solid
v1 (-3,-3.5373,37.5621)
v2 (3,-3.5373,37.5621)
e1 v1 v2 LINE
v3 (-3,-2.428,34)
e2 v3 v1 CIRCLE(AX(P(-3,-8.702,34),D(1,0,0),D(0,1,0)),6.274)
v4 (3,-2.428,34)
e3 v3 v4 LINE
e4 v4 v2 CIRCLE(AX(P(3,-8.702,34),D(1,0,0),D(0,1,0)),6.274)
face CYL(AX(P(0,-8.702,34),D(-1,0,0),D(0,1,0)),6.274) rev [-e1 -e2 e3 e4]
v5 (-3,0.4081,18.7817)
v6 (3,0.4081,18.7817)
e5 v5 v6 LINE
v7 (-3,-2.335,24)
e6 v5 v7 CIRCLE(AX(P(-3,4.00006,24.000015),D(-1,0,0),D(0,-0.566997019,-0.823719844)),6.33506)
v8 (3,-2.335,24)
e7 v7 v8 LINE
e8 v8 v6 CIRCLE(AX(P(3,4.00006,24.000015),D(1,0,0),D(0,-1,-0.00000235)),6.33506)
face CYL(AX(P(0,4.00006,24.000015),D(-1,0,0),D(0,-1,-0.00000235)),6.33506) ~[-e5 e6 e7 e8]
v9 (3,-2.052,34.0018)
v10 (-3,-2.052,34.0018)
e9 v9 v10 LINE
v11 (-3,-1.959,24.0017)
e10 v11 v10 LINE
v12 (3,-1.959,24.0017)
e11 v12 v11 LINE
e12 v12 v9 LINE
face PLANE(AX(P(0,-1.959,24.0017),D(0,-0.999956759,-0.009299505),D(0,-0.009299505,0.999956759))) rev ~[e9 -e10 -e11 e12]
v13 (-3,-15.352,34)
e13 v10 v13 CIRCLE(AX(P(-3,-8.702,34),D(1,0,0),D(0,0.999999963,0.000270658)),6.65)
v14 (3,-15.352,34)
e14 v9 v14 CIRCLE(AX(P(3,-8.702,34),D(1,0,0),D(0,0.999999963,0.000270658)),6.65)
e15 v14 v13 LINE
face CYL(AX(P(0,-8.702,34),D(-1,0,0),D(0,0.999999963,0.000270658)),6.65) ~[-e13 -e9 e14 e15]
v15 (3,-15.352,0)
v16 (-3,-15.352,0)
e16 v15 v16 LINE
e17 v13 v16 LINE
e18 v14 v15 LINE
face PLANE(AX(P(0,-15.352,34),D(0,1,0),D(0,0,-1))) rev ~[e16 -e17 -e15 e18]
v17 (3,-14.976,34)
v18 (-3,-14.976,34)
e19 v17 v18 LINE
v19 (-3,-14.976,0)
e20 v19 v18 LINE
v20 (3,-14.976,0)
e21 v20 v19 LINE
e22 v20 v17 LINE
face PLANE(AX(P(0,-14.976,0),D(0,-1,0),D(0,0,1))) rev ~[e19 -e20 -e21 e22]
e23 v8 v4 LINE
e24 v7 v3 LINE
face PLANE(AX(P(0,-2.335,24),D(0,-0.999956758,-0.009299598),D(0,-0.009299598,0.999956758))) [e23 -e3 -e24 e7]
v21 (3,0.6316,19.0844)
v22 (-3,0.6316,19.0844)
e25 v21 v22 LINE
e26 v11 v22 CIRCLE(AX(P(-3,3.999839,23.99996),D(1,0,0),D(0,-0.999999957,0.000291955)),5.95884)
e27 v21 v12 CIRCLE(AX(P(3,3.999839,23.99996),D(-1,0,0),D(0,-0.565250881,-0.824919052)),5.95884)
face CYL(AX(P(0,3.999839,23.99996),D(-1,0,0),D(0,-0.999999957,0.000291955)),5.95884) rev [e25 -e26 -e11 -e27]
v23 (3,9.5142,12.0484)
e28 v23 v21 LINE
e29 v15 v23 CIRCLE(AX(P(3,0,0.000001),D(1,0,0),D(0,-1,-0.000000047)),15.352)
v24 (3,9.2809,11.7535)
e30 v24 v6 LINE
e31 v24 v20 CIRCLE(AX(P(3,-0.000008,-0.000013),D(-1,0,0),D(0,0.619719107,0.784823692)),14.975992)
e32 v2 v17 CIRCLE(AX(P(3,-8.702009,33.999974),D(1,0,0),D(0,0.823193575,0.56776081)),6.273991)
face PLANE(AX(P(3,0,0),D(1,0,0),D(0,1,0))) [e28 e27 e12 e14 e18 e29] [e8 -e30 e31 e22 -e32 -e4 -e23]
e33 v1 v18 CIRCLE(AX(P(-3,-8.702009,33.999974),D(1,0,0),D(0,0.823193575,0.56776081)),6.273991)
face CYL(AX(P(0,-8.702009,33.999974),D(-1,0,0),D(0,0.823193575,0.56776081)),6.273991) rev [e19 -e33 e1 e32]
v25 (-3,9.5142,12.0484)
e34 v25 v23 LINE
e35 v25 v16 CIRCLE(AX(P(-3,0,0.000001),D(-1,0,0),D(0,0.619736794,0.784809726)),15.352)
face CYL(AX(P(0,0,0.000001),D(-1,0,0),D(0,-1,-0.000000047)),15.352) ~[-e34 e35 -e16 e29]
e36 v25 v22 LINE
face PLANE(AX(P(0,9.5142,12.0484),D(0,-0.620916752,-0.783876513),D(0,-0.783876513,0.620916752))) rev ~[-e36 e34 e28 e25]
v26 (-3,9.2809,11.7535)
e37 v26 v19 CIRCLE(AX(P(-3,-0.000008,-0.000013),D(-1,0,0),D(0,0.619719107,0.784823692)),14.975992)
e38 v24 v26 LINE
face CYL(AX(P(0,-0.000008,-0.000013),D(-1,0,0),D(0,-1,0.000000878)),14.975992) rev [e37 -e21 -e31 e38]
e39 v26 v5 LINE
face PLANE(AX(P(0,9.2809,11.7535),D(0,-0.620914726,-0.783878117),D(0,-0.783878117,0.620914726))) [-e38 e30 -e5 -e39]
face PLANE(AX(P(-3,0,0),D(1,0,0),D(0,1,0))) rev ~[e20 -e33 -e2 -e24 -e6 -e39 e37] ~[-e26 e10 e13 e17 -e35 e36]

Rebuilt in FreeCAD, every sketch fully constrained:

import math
import FreeCAD as App
import Part
import Sketcher

V = App.Vector

doc = App.newDocument("Part")
body = doc.addObject("PartDesign::Body", "Body")

sketch1 = doc.addObject("Sketcher::SketchObject", "Sketch")
body.addObject(sketch1)
sketch1.AttachmentSupport = (doc.YZ_Plane, [""])
sketch1.MapMode = "FlatFace"
sketch1.addGeometry([
    Part.ArcOfCircle(Part.Circle(V(0, 0, 0), V(0, 0, 1), 15.352), math.radians(180), math.radians(411.703084)),
    Part.LineSegment(V(9.5142, 12.0484, 0), V(0.6316, 19.0844, 0)),
    Part.ArcOfCircle(Part.Circle(V(4, 24, 0), V(0, 0, 1), 5.959), math.radians(179.983655), math.radians(235.579227)),
    Part.LineSegment(V(-1.959, 24.0017, 0), V(-2.052, 34.0018, 0)),
    Part.ArcOfCircle(Part.Circle(V(-8.702, 34, 0), V(0, 0, 1), 6.65), math.radians(0.015509), math.radians(180)),
    Part.LineSegment(V(-15.352, 34, 0), V(-15.352, 0, 0)),
    Part.ArcOfCircle(Part.Circle(V(-8.702, 34, 0), V(0, 0, 1), 6.274), math.radians(34.594077), math.radians(180)),
    Part.ArcOfCircle(Part.Circle(V(-8.702, 34, 0), V(0, 0, 1), 6.274), math.radians(0), math.radians(34.594077)),
    Part.LineSegment(V(-2.428, 34, 0), V(-2.335, 24, 0)),
    Part.ArcOfCircle(Part.Circle(V(4, 24, 0), V(0, 0, 1), 6.335), math.radians(180), math.radians(235.45929)),
    Part.LineSegment(V(0.4081, 18.7817, 0), V(9.2809, 11.7535, 0)),
    Part.ArcOfCircle(Part.Circle(V(0, 0, 0), V(0, 0, 1), 14.976), math.radians(180), math.radians(411.704368)),
    Part.LineSegment(V(-14.976, 0, 0), V(-14.976, 34, 0)),
], False)
sketch1.addConstraint([
    Sketcher.Constraint("Coincident", 0, 2, 1, 1),
    Sketcher.Constraint("Coincident", 1, 2, 2, 2),
    Sketcher.Constraint("Coincident", 2, 1, 3, 1),
    Sketcher.Constraint("Coincident", 3, 2, 4, 1),
    Sketcher.Constraint("Tangent", 4, 2, 5, 1),
    Sketcher.Constraint("Tangent", 5, 2, 0, 1),
    Sketcher.Constraint("Tangent", 6, 1, 7, 2),
    Sketcher.Constraint("Coincident", 7, 1, 8, 1),
    Sketcher.Constraint("Coincident", 8, 2, 9, 1),
    Sketcher.Constraint("Coincident", 9, 2, 10, 1),
    Sketcher.Constraint("Coincident", 10, 2, 11, 2),
    Sketcher.Constraint("Tangent", 11, 1, 12, 1),
    Sketcher.Constraint("Tangent", 12, 2, 6, 2),
    Sketcher.Constraint("Vertical", 5),
    Sketcher.Constraint("Vertical", 12),
    Sketcher.Constraint("Coincident", 0, 3, -1, 1),
    Sketcher.Constraint("Coincident", 11, 3, -1, 1),
    Sketcher.Constraint("Coincident", 6, 3, 4, 3),
    Sketcher.Constraint("Coincident", 9, 3, 2, 3),
    Sketcher.Constraint("Equal", 6, 7),
    Sketcher.Constraint("Parallel", 3, 8),
    Sketcher.Constraint("Parallel", 1, 10),
    Sketcher.Constraint("Horizontal", 4, 2, 7, 1),
    Sketcher.Constraint("Horizontal", 9, 3, 8, 2),
    Sketcher.Constraint("Equal", 3, 8),
    Sketcher.Constraint("DistanceY", 5, 2, 5, 1, 34.0),
    Sketcher.Constraint("DistanceX", -1, 1, 2, 3, 4.0),
    Sketcher.Constraint("Radius", 6, 6.274),
    Sketcher.Constraint("Radius", 9, 6.335),
    Sketcher.Constraint("Radius", 11, 14.976),
    Sketcher.Constraint("Radius", 4, 6.65),
    Sketcher.Constraint("DistanceY", -1, 1, 2, 3, 24.0),
    Sketcher.Constraint("DistanceY", 9, 2, 2, 1, 5.22),
    Sketcher.Constraint("Distance", 10, 11.319),
    Sketcher.Constraint("DistanceY", -1, 1, 6, 1, 37.562),
    Sketcher.Constraint("DistanceX", -1, 1, 9, 2, 0.408),
    Sketcher.Constraint("DistanceY", 0, 2, 1, 2, 7.036),
])
pad1 = doc.addObject("PartDesign::Pad", "Pad")
body.addObject(pad1)
pad1.Profile = sketch1
pad1.Length = 6
pad1.Midplane = True

doc.recompute()
